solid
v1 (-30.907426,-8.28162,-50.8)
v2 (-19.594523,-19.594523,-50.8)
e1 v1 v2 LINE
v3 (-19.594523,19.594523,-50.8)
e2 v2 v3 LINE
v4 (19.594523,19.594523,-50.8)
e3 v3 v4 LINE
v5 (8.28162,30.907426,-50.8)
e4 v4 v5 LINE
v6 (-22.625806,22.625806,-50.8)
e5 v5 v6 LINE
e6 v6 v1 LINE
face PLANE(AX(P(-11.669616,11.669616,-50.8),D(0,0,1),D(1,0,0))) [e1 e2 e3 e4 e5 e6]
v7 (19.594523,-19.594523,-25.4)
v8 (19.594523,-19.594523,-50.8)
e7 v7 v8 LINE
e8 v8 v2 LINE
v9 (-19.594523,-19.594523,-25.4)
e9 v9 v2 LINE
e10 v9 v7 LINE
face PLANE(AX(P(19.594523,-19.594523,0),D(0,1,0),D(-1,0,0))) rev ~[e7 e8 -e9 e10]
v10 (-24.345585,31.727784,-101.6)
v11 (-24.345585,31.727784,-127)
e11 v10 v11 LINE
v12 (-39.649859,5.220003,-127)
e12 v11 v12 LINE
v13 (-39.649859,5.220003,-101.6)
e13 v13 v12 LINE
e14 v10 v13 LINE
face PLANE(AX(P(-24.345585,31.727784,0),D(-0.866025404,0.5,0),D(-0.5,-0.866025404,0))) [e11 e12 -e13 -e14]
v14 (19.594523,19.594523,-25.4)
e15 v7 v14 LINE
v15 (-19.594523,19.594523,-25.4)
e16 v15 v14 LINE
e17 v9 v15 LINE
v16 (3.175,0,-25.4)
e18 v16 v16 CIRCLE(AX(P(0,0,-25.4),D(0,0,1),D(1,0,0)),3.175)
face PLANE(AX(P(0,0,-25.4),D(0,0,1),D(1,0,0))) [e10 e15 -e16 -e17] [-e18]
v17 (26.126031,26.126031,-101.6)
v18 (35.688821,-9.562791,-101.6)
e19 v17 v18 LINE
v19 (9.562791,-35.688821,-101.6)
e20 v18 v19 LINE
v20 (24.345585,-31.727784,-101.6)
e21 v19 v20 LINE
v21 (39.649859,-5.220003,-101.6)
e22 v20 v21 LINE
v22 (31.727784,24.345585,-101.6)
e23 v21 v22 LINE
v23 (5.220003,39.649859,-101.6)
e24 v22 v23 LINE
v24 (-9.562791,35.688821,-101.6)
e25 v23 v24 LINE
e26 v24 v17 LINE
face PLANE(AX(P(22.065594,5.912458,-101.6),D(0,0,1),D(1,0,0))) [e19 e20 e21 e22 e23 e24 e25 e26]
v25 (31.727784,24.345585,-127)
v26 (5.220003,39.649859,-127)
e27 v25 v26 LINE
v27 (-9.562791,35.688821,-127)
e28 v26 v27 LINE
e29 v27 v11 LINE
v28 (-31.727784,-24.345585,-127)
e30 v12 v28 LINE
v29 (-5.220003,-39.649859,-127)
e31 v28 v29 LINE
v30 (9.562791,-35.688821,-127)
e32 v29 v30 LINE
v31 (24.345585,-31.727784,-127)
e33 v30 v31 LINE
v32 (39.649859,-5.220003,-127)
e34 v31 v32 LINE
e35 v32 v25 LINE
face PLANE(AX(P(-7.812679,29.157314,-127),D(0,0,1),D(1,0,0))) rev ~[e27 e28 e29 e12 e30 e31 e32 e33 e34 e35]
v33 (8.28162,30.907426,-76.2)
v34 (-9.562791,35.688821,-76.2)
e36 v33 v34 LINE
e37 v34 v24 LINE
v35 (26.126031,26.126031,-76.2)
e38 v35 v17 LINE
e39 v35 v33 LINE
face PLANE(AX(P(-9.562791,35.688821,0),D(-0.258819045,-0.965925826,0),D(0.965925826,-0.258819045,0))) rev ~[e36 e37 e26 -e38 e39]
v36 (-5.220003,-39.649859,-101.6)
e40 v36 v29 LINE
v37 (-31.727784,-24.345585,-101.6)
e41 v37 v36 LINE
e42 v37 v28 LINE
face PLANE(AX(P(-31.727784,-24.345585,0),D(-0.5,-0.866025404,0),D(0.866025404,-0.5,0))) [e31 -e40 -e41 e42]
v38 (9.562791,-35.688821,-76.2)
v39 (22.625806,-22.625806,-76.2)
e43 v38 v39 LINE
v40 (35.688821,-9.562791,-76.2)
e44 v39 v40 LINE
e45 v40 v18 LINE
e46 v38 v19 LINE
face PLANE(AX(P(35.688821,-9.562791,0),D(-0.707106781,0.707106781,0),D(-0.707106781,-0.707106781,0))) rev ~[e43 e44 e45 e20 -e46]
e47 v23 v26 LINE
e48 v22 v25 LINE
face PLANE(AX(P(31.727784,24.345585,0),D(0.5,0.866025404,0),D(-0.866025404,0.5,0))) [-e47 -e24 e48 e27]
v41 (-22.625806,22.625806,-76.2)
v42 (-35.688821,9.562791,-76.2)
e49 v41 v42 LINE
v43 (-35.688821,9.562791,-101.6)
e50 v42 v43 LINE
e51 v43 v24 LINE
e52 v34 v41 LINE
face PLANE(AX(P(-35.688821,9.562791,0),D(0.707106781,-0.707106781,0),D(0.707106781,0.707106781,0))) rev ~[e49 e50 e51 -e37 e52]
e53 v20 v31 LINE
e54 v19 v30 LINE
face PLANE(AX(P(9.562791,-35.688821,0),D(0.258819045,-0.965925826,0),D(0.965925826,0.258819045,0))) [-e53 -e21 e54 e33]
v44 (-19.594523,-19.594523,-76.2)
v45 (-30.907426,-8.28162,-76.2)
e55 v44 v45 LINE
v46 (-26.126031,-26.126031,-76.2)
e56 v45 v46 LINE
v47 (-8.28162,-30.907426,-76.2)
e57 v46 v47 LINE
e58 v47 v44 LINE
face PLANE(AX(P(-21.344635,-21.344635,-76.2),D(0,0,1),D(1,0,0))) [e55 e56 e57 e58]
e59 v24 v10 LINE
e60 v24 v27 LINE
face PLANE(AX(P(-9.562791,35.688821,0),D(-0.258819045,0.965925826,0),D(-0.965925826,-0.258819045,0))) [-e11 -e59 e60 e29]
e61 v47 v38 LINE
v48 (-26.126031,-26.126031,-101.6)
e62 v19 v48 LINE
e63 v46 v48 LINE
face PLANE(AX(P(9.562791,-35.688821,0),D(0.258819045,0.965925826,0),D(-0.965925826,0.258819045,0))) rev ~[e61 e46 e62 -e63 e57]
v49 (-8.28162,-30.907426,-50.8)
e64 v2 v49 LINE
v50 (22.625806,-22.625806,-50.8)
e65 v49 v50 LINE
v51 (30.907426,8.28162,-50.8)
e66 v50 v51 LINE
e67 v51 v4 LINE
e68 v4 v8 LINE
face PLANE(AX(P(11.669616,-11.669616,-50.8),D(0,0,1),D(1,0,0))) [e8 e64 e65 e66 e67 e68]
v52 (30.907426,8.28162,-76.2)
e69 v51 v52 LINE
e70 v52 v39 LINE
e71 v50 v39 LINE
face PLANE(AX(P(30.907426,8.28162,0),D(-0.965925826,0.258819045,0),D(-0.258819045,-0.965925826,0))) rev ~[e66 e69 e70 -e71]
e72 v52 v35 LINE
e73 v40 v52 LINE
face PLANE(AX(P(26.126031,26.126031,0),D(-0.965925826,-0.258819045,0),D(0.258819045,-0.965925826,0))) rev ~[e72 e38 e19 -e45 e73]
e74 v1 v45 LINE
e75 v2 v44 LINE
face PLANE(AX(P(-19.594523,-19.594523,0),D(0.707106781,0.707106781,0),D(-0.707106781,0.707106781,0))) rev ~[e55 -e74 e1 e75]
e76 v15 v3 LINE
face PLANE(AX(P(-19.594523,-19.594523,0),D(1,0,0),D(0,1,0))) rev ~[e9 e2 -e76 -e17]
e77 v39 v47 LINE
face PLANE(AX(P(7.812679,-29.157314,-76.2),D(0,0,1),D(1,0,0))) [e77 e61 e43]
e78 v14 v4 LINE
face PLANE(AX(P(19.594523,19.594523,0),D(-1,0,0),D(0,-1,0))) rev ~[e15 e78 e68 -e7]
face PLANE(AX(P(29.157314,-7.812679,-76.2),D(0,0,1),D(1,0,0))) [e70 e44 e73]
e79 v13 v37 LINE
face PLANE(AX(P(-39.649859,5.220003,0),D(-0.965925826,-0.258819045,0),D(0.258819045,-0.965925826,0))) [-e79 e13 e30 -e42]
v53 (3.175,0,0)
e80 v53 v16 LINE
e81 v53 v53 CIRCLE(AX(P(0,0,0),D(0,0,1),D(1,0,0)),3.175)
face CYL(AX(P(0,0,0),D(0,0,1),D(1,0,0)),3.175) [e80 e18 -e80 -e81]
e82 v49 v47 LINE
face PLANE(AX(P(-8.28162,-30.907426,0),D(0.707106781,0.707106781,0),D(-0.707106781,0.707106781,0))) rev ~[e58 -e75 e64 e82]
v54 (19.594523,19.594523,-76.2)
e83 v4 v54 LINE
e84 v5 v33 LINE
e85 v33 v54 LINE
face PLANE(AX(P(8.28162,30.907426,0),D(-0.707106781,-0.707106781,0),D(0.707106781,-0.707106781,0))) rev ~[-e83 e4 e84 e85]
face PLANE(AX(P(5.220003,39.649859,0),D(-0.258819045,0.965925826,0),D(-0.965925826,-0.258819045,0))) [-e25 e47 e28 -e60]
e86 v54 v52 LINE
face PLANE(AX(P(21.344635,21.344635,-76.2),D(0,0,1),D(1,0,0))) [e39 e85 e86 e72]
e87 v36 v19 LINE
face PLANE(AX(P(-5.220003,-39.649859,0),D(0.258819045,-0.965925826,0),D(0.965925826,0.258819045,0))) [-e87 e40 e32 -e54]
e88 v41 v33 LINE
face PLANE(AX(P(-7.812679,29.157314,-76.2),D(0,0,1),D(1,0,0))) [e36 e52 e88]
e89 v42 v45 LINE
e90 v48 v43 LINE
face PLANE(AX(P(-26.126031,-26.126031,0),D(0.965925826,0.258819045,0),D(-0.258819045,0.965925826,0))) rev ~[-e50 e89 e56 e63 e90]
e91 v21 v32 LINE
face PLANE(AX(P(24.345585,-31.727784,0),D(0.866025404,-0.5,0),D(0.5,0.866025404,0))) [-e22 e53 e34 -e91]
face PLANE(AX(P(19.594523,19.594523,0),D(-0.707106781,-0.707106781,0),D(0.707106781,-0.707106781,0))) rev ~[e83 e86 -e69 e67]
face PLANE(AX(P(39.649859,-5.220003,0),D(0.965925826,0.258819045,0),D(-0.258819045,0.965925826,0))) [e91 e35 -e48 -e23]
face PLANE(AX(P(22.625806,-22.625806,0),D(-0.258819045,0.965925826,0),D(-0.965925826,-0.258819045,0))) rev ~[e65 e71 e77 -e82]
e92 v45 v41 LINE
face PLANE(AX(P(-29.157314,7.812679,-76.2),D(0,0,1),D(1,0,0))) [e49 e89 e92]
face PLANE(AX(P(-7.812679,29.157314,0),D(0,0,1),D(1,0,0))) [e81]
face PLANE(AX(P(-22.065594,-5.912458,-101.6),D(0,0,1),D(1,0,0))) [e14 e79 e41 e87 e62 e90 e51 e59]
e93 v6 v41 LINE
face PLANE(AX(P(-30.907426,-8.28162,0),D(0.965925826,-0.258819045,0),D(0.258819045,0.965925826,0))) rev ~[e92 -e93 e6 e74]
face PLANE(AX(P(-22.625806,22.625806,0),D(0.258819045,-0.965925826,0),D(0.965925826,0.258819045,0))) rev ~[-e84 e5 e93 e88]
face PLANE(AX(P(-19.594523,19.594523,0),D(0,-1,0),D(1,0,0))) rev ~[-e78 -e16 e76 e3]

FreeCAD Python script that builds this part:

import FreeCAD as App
import Part
import Sketcher
from FreeCAD import Vector
Q = App.Units.Quantity


def add_polygon(sketch, points):
    """Adds a closed chain of lines whose ends are joined by coincident constraints."""
    first, n = sketch.GeometryCount, len(points)
    for a, b in zip(points, points[1:] + points[:1]):
        sketch.addGeometry(Part.LineSegment(App.Vector(*a, 0), App.Vector(*b, 0)), False)
    for i in range(n):
        sketch.addConstraint(Sketcher.Constraint("Coincident", first + i, 2, first + (i + 1) % n, 1))

doc = App.newDocument("Part")
params = doc.addObject("Spreadsheet::Sheet", "Params")
for row, (alias, value) in enumerate([
    ("pad1_length", "5 in"),
    ("pocket1_length", "4 in"),
    ("pocket2_length", "3 in"),
    ("pocket3_length", "2 in"),
    ("sketch5_diameter", "0.25 in"),
    ("pocket4_length", "1 in"),
], start=1):
    params.set(f"A{row}", alias)
    params.set(f"B{row}", "=" + value)
    params.setAlias(f"B{row}", alias)

body = doc.addObject("PartDesign::Body", "Body")

sketch1 = body.newObject("Sketcher::SketchObject", "Sketch")
sketch1.AttachmentSupport = (doc.getObject("XY_Plane"), [""])
sketch1.MapMode = "FlatFace"
add_polygon(sketch1, [(-5, -40), (10, -36), (24, -32), (40, -5), (32, 24), (5, 40), (-10, 36), (-24, 32), (-40, 5), (-32, -24)])
sketch1.addConstraint([
    Sketcher.Constraint("Symmetric", 0, 2, 5, 2, -1, 1),
    Sketcher.Constraint("Symmetric", 1, 2, 6, 2, -1, 1),
    Sketcher.Constraint("Symmetric", 2, 2, 7, 2, -1, 1),
    Sketcher.Constraint("Symmetric", 3, 2, 8, 2, -1, 1),
    Sketcher.Constraint("Symmetric", 4, 2, 9, 2, -1, 1),
    Sketcher.Constraint("Parallel", 0, 1),
    Sketcher.Constraint("Perpendicular", 1, 3),
    Sketcher.Constraint("Perpendicular", 2, 4),
    Sketcher.Constraint("Equal", 0, 1),
    Sketcher.Constraint("Equal", 2, 3),
    Sketcher.Constraint("Equal", 3, 4),
    Sketcher.Constraint("Angle", 0, Q("15 deg")),
    Sketcher.Constraint("Angle", 2, Q("60 deg")),
    Sketcher.Constraint("DistanceX", 1, 2, 3, 2, 7.382199),
    Sketcher.Constraint("DistanceY", 3, 2, 6, 2, 7.382199),
])
pad1 = body.newObject("PartDesign::Pad", "Pad")
pad1.Profile = sketch1
pad1.setExpression("Length", "Params.pad1_length")
pad1.Reversed = True

sketch2 = body.newObject("Sketcher::SketchObject", "Sketch001")
sketch2.AttachmentSupport = (doc.getObject("XY_Plane"), [""])
sketch2.MapMode = "FlatFace"
add_polygon(sketch2, [(-36, 10), (-10, 36), (-24, 32), (-40, 5), (-32, -24), (-5, -40), (10, -36), (-26, -26)])
add_polygon(sketch2, [(-10, 36), (26, 26), (36, -10), (10, -36), (24, -32), (40, -5), (32, 24), (5, 40)])
sketch2.addConstraint([
    Sketcher.Constraint("Coincident", 10, 2, 5, 2),
    Sketcher.Constraint("Coincident", 15, 2, 0, 2),
    Sketcher.Constraint("Symmetric", 0, 2, 5, 2, -1, 1),
    Sketcher.Constraint("Symmetric", 6, 2, 8, 2, -1, 1),
    Sketcher.Constraint("Symmetric", 7, 2, 9, 2, -1, 1),
    Sketcher.Constraint("Symmetric", 1, 2, 11, 2, -1, 1),
    Sketcher.Constraint("Symmetric", 2, 2, 12, 2, -1, 1),
    Sketcher.Constraint("Symmetric", 3, 2, 13, 2, -1, 1),
    Sketcher.Constraint("Symmetric", 4, 2, 14, 2, -1, 1),
    Sketcher.Constraint("Perpendicular", 1, 3),
    Sketcher.Constraint("Perpendicular", 2, 4),
    Sketcher.Constraint("Perpendicular", 3, 5),
    Sketcher.Constraint("Perpendicular", 5, 7),
    Sketcher.Constraint("Equal", 2, 3),
    Sketcher.Constraint("Equal", 3, 4),
    Sketcher.Constraint("Equal", 1, 5),
    Sketcher.Constraint("Equal", 0, 6),
    Sketcher.Constraint("Equal", 6, 7),
    Sketcher.Constraint("Angle", 0, Q("45 deg")),
    Sketcher.Constraint("Angle", 1, Q("-165 deg")),
    Sketcher.Constraint("Angle", 2, Q("-120 deg")),
    Sketcher.Constraint("DistanceX", 3, 2, 1, 2, 7.382199),
    Sketcher.Constraint("DistanceY", 13, 2, 1, 2, 7.382199),
])
pocket1 = body.newObject("PartDesign::Pocket", "Pocket")
pocket1.Profile = sketch2
pocket1.setExpression("Length", "Params.pocket1_length")

sketch3 = body.newObject("Sketcher::SketchObject", "Sketch002")
sketch3.AttachmentSupport = (doc.getObject("XY_Plane"), [""])
sketch3.MapMode = "FlatFace"
add_polygon(sketch3, [(-8, -31), (-20, -20), (-31, -8), (-26, -26)])
add_polygon(sketch3, [(10, -36), (23, -23), (-8, -31)])
add_polygon(sketch3, [(36, -10), (31, 8), (23, -23)])
add_polygon(sketch3, [(8, 31), (20, 20), (31, 8), (26, 26)])
add_polygon(sketch3, [(-23, 23), (8, 31), (-10, 36)])
add_polygon(sketch3, [(-31, -8), (-23, 23), (-36, 10)])
sketch3.addConstraint([
    Sketcher.Constraint("Coincident", 5, 2, 3, 2),
    Sketcher.Constraint("Coincident", 8, 2, 4, 2),
    Sketcher.Constraint("Coincident", 11, 2, 7, 2),
    Sketcher.Constraint("Coincident", 14, 2, 13, 2),
    Sketcher.Constraint("Coincident", 17, 2, 16, 2),
    Sketcher.Constraint("Coincident", 19, 2, 1, 2),
    Sketcher.Constraint("Symmetric", 1, 2, 7, 2, -1, 1),
    Sketcher.Constraint("Symmetric", 0, 2, 10, 2, -1, 1),
    Sketcher.Constraint("Symmetric", 2, 2, 12, 2, -1, 1),
    Sketcher.Constraint("Symmetric", 3, 2, 13, 2, -1, 1),
    Sketcher.Constraint("Symmetric", 6, 2, 15, 2, -1, 1),
    Sketcher.Constraint("Symmetric", 4, 2, 16, 2, -1, 1),
    Sketcher.Constraint("Symmetric", 9, 2, 18, 2, -1, 1),
    Sketcher.Constraint("Parallel", 0, 1),
    Sketcher.Constraint("Perpendicular", 1, 4),
    Sketcher.Constraint("Perpendicular", 2, 5),
    Sketcher.Constraint("Parallel", 3, 6),
    Sketcher.Constraint("Perpendicular", 5, 7),
    Sketcher.Constraint("Perpendicular", 6, 8),
    Sketcher.Constraint("Parallel", 4, 9),
    Sketcher.Constraint("Equal", 0, 1),
    Sketcher.Constraint("Equal", 2, 3),
    Sketcher.Constraint("Equal", 3, 4),
    Sketcher.Constraint("Equal", 4, 6),
    Sketcher.Constraint("Equal", 6, 7),
    Sketcher.Constraint("Angle", 0, Q("135 deg")),
    Sketcher.Constraint("DistanceY", 6, 2, 0, 2, 16.094299),
])
pocket2 = body.newObject("PartDesign::Pocket", "Pocket001")
pocket2.Profile = sketch3
pocket2.setExpression("Length", "Params.pocket2_length")

sketch4 = body.newObject("Sketcher::SketchObject", "Sketch003")
sketch4.AttachmentSupport = (doc.getObject("XY_Plane"), [""])
sketch4.MapMode = "FlatFace"
add_polygon(sketch4, [(-20, 20), (20, 20), (8, 31), (-23, 23), (-31, -8), (-20, -20)])
add_polygon(sketch4, [(31, 8), (20, 20), (20, -20), (-20, -20), (-8, -31), (23, -23)])
sketch4.addConstraint([
    Sketcher.Constraint("Horizontal", 0),
    Sketcher.Constraint("Vertical", 5),
    Sketcher.Constraint("Vertical", 7),
    Sketcher.Constraint("Horizontal", 8),
    Sketcher.Constraint("Coincident", 6, 2, 0, 2),
    Sketcher.Constraint("Coincident", 8, 2, 4, 2),
    Sketcher.Constraint("Symmetric", 0, 2, 4, 2, -1, 1),
    Sketcher.Constraint("Symmetric", 1, 2, 9, 2, -1, 1),
    Sketcher.Constraint("Symmetric", 2, 2, 10, 2, -1, 1),
    Sketcher.Constraint("Symmetric", 3, 2, 11, 2, -1, 1),
    Sketcher.Constraint("Parallel", 1, 4),
    Sketcher.Constraint("Equal", 8, 5),
    Sketcher.Constraint("Equal", 2, 3),
    Sketcher.Constraint("Equal", 1, 4),
    Sketcher.Constraint("Angle", 1, Q("135 deg")),
    Sketcher.Constraint("Angle", 2, Q("-165 deg")),
    Sketcher.Constraint("Distance", 1, 15.998861),
    Sketcher.Constraint("Distance", 2, 31.997722),
])
pocket3 = body.newObject("PartDesign::Pocket", "Pocket002")
pocket3.Profile = sketch4
pocket3.setExpression("Length", "Params.pocket3_length")

sketch5 = body.newObject("Sketcher::SketchObject", "Sketch004")
sketch5.AttachmentSupport = (doc.getObject("XY_Plane"), [""])
sketch5.MapMode = "FlatFace"
add_polygon(sketch5, [(-19.6, 19.6), (-19.6, -19.6), (19.6, -19.6), (19.6, 19.6)])
sketch5.addGeometry(Part.Circle(Vector(0, 0, 0), Vector(0, 0, 1), 3.2), False)
sketch5.addConstraint([
    Sketcher.Constraint("Vertical", 0),
    Sketcher.Constraint("Horizontal", 1),
    Sketcher.Constraint("Vertical", 2),
    Sketcher.Constraint("Horizontal", 3),
    Sketcher.Constraint("Coincident", 4, 3, -1, 1),
    Sketcher.Constraint("Symmetric", 0, 2, 2, 2, -1, 1),
    Sketcher.Constraint("Equal", 3, 0),
    Sketcher.Constraint("Diameter", 4, Q("0.25 in")),
    Sketcher.Constraint("DistanceX", 1, 1, 1, 2, 39.189046),
])
sketch5.setExpression("Constraints[11]", "Params.sketch5_diameter")
pocket4 = body.newObject("PartDesign::Pocket", "Pocket003")
pocket4.Profile = sketch5
pocket4.setExpression("Length", "Params.pocket4_length")

doc.recompute()
